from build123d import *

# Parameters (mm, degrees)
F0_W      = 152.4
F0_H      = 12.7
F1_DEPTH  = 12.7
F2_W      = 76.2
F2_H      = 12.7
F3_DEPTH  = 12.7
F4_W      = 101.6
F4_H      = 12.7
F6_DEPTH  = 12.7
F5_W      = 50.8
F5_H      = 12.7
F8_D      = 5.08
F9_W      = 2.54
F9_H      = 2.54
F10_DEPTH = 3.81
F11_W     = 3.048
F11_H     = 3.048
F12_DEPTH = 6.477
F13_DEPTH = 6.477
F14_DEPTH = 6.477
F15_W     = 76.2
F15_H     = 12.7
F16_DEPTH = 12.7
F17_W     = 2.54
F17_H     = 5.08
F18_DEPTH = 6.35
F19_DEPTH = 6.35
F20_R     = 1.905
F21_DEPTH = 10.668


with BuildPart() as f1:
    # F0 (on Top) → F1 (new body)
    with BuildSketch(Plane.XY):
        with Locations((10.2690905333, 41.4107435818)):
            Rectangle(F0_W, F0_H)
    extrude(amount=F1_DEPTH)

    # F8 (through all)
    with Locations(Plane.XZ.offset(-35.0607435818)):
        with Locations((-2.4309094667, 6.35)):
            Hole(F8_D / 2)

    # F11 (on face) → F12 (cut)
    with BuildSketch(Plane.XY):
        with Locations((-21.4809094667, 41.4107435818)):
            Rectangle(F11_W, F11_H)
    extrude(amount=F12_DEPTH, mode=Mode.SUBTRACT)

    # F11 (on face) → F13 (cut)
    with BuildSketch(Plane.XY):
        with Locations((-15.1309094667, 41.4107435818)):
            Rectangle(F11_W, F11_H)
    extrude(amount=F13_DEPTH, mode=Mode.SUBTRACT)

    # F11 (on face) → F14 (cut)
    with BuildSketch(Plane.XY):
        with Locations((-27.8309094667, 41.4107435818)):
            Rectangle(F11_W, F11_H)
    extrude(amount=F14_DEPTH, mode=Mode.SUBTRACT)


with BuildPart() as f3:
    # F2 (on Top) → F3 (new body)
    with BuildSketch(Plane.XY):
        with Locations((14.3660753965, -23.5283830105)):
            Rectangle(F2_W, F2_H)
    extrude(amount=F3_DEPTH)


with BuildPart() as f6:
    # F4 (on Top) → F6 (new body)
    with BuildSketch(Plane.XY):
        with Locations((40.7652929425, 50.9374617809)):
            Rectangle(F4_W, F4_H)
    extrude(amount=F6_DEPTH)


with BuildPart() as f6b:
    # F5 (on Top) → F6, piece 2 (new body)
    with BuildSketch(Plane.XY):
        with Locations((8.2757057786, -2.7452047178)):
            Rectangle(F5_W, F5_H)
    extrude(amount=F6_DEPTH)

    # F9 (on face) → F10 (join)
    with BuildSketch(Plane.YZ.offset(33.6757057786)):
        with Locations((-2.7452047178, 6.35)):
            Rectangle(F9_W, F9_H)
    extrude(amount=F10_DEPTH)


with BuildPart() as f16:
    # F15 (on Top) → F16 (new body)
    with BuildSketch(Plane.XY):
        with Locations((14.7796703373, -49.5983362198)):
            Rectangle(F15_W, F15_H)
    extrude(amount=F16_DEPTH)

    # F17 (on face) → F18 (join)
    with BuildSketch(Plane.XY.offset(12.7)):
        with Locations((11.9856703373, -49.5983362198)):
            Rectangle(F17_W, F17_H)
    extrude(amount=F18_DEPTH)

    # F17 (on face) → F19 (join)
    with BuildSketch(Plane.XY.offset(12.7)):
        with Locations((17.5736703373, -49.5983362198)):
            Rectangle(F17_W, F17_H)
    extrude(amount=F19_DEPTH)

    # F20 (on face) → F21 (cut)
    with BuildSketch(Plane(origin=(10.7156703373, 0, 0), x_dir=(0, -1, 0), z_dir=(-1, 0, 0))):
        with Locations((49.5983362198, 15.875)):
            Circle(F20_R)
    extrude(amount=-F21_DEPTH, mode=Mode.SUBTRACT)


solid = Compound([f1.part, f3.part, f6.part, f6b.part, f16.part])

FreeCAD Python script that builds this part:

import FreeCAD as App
import Part
import Sketcher
from FreeCAD import Vector
Q = App.Units.Quantity

doc = App.newDocument("Part")
body = doc.addObject("PartDesign::Body", "Body")

sketch1 = doc.addObject("Sketcher::SketchObject", "Sketch")
body.addObject(sketch1)
sketch1.AttachmentSupport = (doc.XY_Plane, [""])
sketch1.MapMode = "FlatFace"
sketch1.addGeometry([
    Part.LineSegment(Vector(-65.930909, 47.760744, 0), Vector(-65.930909, 35.060744, 0)),
    Part.LineSegment(Vector(-65.930909, 35.060744, 0), Vector(86.469091, 35.060744, 0)),
    Part.LineSegment(Vector(86.469091, 35.060744, 0), Vector(86.469091, 47.760744, 0)),
    Part.LineSegment(Vector(86.469091, 47.760744, 0), Vector(-65.930909, 47.760744, 0)),
], False)
sketch1.addConstraint([
    Sketcher.Constraint("Coincident", 0, 2, 1, 1),
    Sketcher.Constraint("Coincident", 1, 2, 2, 1),
    Sketcher.Constraint("Coincident", 2, 2, 3, 1),
    Sketcher.Constraint("Coincident", 3, 2, 0, 1),
    Sketcher.Constraint("Vertical", 0),
    Sketcher.Constraint("Horizontal", 1),
    Sketcher.Constraint("Vertical", 2),
    Sketcher.Constraint("Horizontal", 3),
    Sketcher.Constraint("DistanceX", 1, 1, 1, 2, Q("6 in")),
    Sketcher.Constraint("DistanceY", 0, 2, 0, 1, Q("0.5 in")),
    Sketcher.Constraint("DistanceX", 0, 2, -1, 1, 65.930909),
    Sketcher.Constraint("DistanceY", -1, 1, 0, 2, 35.060744),
])
pad1 = doc.addObject("PartDesign::Pad", "Pad")
body.addObject(pad1)
pad1.Profile = sketch1
pad1.Length = Q("0.5 in")

sketch2 = doc.addObject("Sketcher::SketchObject", "Sketch001")
body.addObject(sketch2)
sketch2.AttachmentSupport = (doc.XZ_Plane, [""])
sketch2.MapMode = "FlatFace"
sketch2.AttachmentOffset = App.Placement(Vector(0, 0, -35.060744), App.Rotation())
sketch2.addGeometry(Part.Circle(Vector(-2.430909, 6.35, 0), Vector(0, 0, 1), 2.54), False)
sketch2.addConstraint([
    Sketcher.Constraint("Diameter", 0, Q("0.2 in")),
    Sketcher.Constraint("DistanceY", -1, 1, 0, 3, Q("0.25 in")),
    Sketcher.Constraint("DistanceX", 0, 3, -1, 1, 2.430909),
])
doc.recompute()
hole = doc.addObject("PartDesign::Hole", "Hole")
body.addObject(hole)
hole.Profile = sketch2
hole.ThreadType = "None"
hole.Diameter = Q("0.2 in")
hole.DepthType = "ThroughAll"

sketch3 = doc.addObject("Sketcher::SketchObject", "Sketch002")
body.addObject(sketch3)
sketch3.AttachmentSupport = (doc.XY_Plane, [""])
sketch3.MapMode = "FlatFace"
sketch3.addGeometry([
    Part.LineSegment(Vector(-23.004909, 42.934744, 0), Vector(-23.004909, 39.886744, 0)),
    Part.LineSegment(Vector(-23.004909, 39.886744, 0), Vector(-19.956909, 39.886744, 0)),
    Part.LineSegment(Vector(-19.956909, 39.886744, 0), Vector(-19.956909, 42.934744, 0)),
    Part.LineSegment(Vector(-19.956909, 42.934744, 0), Vector(-23.004909, 42.934744, 0)),
], False)
sketch3.addConstraint([
    Sketcher.Constraint("Coincident", 0, 2, 1, 1),
    Sketcher.Constraint("Coincident", 1, 2, 2, 1),
    Sketcher.Constraint("Coincident", 2, 2, 3, 1),
    Sketcher.Constraint("Coincident", 3, 2, 0, 1),
    Sketcher.Constraint("Vertical", 0),
    Sketcher.Constraint("Horizontal", 1),
    Sketcher.Constraint("Vertical", 2),
    Sketcher.Constraint("Horizontal", 3),
    Sketcher.Constraint("Equal", 3, 0),
    Sketcher.Constraint("DistanceX", 1, 1, 1, 2, Q("0.12 in")),
    Sketcher.Constraint("DistanceX", 0, 2, -1, 1, 23.004909),
    Sketcher.Constraint("DistanceY", -1, 1, 0, 2, 39.886744),
])
pocket1 = doc.addObject("PartDesign::Pocket", "Pocket")
body.addObject(pocket1)
pocket1.Profile = sketch3
pocket1.Length = Q("0.255 in")
pocket1.Reversed = True

sketch4 = doc.addObject("Sketcher::SketchObject", "Sketch003")
body.addObject(sketch4)
sketch4.AttachmentSupport = (doc.XY_Plane, [""])
sketch4.MapMode = "FlatFace"
sketch4.addGeometry([
    Part.LineSegment(Vector(-16.654909, 42.934744, 0), Vector(-16.654909, 39.886744, 0)),
    Part.LineSegment(Vector(-16.654909, 39.886744, 0), Vector(-13.606909, 39.886744, 0)),
    Part.LineSegment(Vector(-13.606909, 39.886744, 0), Vector(-13.606909, 42.934744, 0)),
    Part.LineSegment(Vector(-13.606909, 42.934744, 0), Vector(-16.654909, 42.934744, 0)),
], False)
sketch4.addConstraint([
    Sketcher.Constraint("Coincident", 0, 2, 1, 1),
    Sketcher.Constraint("Coincident", 1, 2, 2, 1),
    Sketcher.Constraint("Coincident", 2, 2, 3, 1),
    Sketcher.Constraint("Coincident", 3, 2, 0, 1),
    Sketcher.Constraint("Vertical", 0),
    Sketcher.Constraint("Horizontal", 1),
    Sketcher.Constraint("Vertical", 2),
    Sketcher.Constraint("Horizontal", 3),
    Sketcher.Constraint("Equal", 3, 0),
    Sketcher.Constraint("DistanceX", 1, 1, 1, 2, Q("0.12 in")),
    Sketcher.Constraint("DistanceX", 0, 2, -1, 1, 16.654909),
    Sketcher.Constraint("DistanceY", -1, 1, 0, 2, 39.886744),
])
pocket2 = doc.addObject("PartDesign::Pocket", "Pocket001")
body.addObject(pocket2)
pocket2.Profile = sketch4
pocket2.Length = Q("0.255 in")
pocket2.Reversed = True

sketch5 = doc.addObject("Sketcher::SketchObject", "Sketch004")
body.addObject(sketch5)
sketch5.AttachmentSupport = (doc.XY_Plane, [""])
sketch5.MapMode = "FlatFace"
sketch5.addGeometry([
    Part.LineSegment(Vector(-29.354909, 42.934744, 0), Vector(-29.354909, 39.886744, 0)),
    Part.LineSegment(Vector(-29.354909, 39.886744, 0), Vector(-26.306909, 39.886744, 0)),
    Part.LineSegment(Vector(-26.306909, 39.886744, 0), Vector(-26.306909, 42.934744, 0)),
    Part.LineSegment(Vector(-26.306909, 42.934744, 0), Vector(-29.354909, 42.934744, 0)),
], False)
sketch5.addConstraint([
    Sketcher.Constraint("Coincident", 0, 2, 1, 1),
    Sketcher.Constraint("Coincident", 1, 2, 2, 1),
    Sketcher.Constraint("Coincident", 2, 2, 3, 1),
    Sketcher.Constraint("Coincident", 3, 2, 0, 1),
    Sketcher.Constraint("Vertical", 0),
    Sketcher.Constraint("Horizontal", 1),
    Sketcher.Constraint("Vertical", 2),
    Sketcher.Constraint("Horizontal", 3),
    Sketcher.Constraint("Equal", 3, 0),
    Sketcher.Constraint("DistanceX", 1, 1, 1, 2, Q("0.12 in")),
    Sketcher.Constraint("DistanceX", 0, 2, -1, 1, 29.354909),
    Sketcher.Constraint("DistanceY", -1, 1, 0, 2, 39.886744),
])
pocket3 = doc.addObject("PartDesign::Pocket", "Pocket002")
body.addObject(pocket3)
pocket3.Profile = sketch5
pocket3.Length = Q("0.255 in")
pocket3.Reversed = True
body2 = doc.addObject("PartDesign::Body", "Body001")

sketch6 = doc.addObject("Sketcher::SketchObject", "Sketch005")
body2.addObject(sketch6)
sketch6.AttachmentSupport = (doc.getObject("XY_Plane001"), [""])
sketch6.MapMode = "FlatFace"
sketch6.addGeometry([
    Part.LineSegment(Vector(-23.733925, -17.178383, 0), Vector(-23.733925, -29.878383, 0)),
    Part.LineSegment(Vector(-23.733925, -29.878383, 0), Vector(52.466075, -29.878383, 0)),
    Part.LineSegment(Vector(52.466075, -29.878383, 0), Vector(52.466075, -17.178383, 0)),
    Part.LineSegment(Vector(52.466075, -17.178383, 0), Vector(-23.733925, -17.178383, 0)),
], False)
sketch6.addConstraint([
    Sketcher.Constraint("Coincident", 0, 2, 1, 1),
    Sketcher.Constraint("Coincident", 1, 2, 2, 1),
    Sketcher.Constraint("Coincident", 2, 2, 3, 1),
    Sketcher.Constraint("Coincident", 3, 2, 0, 1),
    Sketcher.Constraint("Vertical", 0),
    Sketcher.Constraint("Horizontal", 1),
    Sketcher.Constraint("Vertical", 2),
    Sketcher.Constraint("Horizontal", 3),
    Sketcher.Constraint("DistanceX", 1, 1, 1, 2, Q("3 in")),
    Sketcher.Constraint("DistanceY", 0, 2, 0, 1, Q("0.5 in")),
    Sketcher.Constraint("DistanceX", 0, 2, -1, 1, 23.733925),
    Sketcher.Constraint("DistanceY", 0, 2, -1, 1, 29.878383),
])
pad2 = doc.addObject("PartDesign::Pad", "Pad001")
body2.addObject(pad2)
pad2.Profile = sketch6
pad2.Length = Q("0.5 in")
body3 = doc.addObject("PartDesign::Body", "Body002")

sketch7 = doc.addObject("Sketcher::SketchObject", "Sketch006")
body3.addObject(sketch7)
sketch7.AttachmentSupport = (doc.getObject("XY_Plane002"), [""])
sketch7.MapMode = "FlatFace"
sketch7.addGeometry([
    Part.LineSegment(Vector(-10.034707, 57.287462, 0), Vector(-10.034707, 44.587462, 0)),
    Part.LineSegment(Vector(-10.034707, 44.587462, 0), Vector(91.565293, 44.587462, 0)),
    Part.LineSegment(Vector(91.565293, 44.587462, 0), Vector(91.565293, 57.287462, 0)),
    Part.LineSegment(Vector(91.565293, 57.287462, 0), Vector(-10.034707, 57.287462, 0)),
], False)
sketch7.addConstraint([
    Sketcher.Constraint("Coincident", 0, 2, 1, 1),
    Sketcher.Constraint("Coincident", 1, 2, 2, 1),
    Sketcher.Constraint("Coincident", 2, 2, 3, 1),
    Sketcher.Constraint("Coincident", 3, 2, 0, 1),
    Sketcher.Constraint("Vertical", 0),
    Sketcher.Constraint("Horizontal", 1),
    Sketcher.Constraint("Vertical", 2),
    Sketcher.Constraint("Horizontal", 3),
    Sketcher.Constraint("DistanceX", 1, 1, 1, 2, Q("4 in")),
    Sketcher.Constraint("DistanceY", 0, 2, 0, 1, Q("0.5 in")),
    Sketcher.Constraint("DistanceY", -1, 1, 0, 2, 44.587462),
    Sketcher.Constraint("DistanceX", 0, 2, -1, 1, 10.034707),
])
pad3 = doc.addObject("PartDesign::Pad", "Pad002")
body3.addObject(pad3)
pad3.Profile = sketch7
pad3.Length = Q("0.5 in")
body4 = doc.addObject("PartDesign::Body", "Body003")

sketch8 = doc.addObject("Sketcher::SketchObject", "Sketch007")
body4.addObject(sketch8)
sketch8.AttachmentSupport = (doc.getObject("XY_Plane003"), [""])
sketch8.MapMode = "FlatFace"
sketch8.addGeometry([
    Part.LineSegment(Vector(-17.124294, 3.604795, 0), Vector(-17.124294, -9.095205, 0)),
    Part.LineSegment(Vector(-17.124294, -9.095205, 0), Vector(33.675706, -9.095205, 0)),
    Part.LineSegment(Vector(33.675706, -9.095205, 0), Vector(33.675706, 3.604795, 0)),
    Part.LineSegment(Vector(33.675706, 3.604795, 0), Vector(-17.124294, 3.604795, 0)),
], False)
sketch8.addConstraint([
    Sketcher.Constraint("Coincident", 0, 2, 1, 1),
    Sketcher.Constraint("Coincident", 1, 2, 2, 1),
    Sketcher.Constraint("Coincident", 2, 2, 3, 1),
    Sketcher.Constraint("Coincident", 3, 2, 0, 1),
    Sketcher.Constraint("Vertical", 0),
    Sketcher.Constraint("Horizontal", 1),
    Sketcher.Constraint("Vertical", 2),
    Sketcher.Constraint("Horizontal", 3),
    Sketcher.Constraint("DistanceX", 1, 1, 1, 2, Q("2 in")),
    Sketcher.Constraint("DistanceY", 0, 2, 0, 1, Q("0.5 in")),
    Sketcher.Constraint("DistanceX", 0, 2, -1, 1, 17.124294),
    Sketcher.Constraint("DistanceY", 0, 2, -1, 1, 9.095205),
])
pad4 = doc.addObject("PartDesign::Pad", "Pad003")
body4.addObject(pad4)
pad4.Profile = sketch8
pad4.Length = Q("0.5 in")

sketch9 = doc.addObject("Sketcher::SketchObject", "Sketch008")
body4.addObject(sketch9)
sketch9.AttachmentSupport = (doc.getObject("YZ_Plane003"), [""])
sketch9.MapMode = "FlatFace"
sketch9.AttachmentOffset = App.Placement(Vector(0, 0, 33.675706), App.Rotation())
sketch9.addGeometry([
    Part.LineSegment(Vector(-4.015205, 7.62, 0), Vector(-4.015205, 5.08, 0)),
    Part.LineSegment(Vector(-4.015205, 5.08, 0), Vector(-1.475205, 5.08, 0)),
    Part.LineSegment(Vector(-1.475205, 5.08, 0), Vector(-1.475205, 7.62, 0)),
    Part.LineSegment(Vector(-1.475205, 7.62, 0), Vector(-4.015205, 7.62, 0)),
], False)
sketch9.addConstraint([
    Sketcher.Constraint("Coincident", 0, 2, 1, 1),
    Sketcher.Constraint("Coincident", 1, 2, 2, 1),
    Sketcher.Constraint("Coincident", 2, 2, 3, 1),
    Sketcher.Constraint("Coincident", 3, 2, 0, 1),
    Sketcher.Constraint("Vertical", 0),
    Sketcher.Constraint("Horizontal", 1),
    Sketcher.Constraint("Vertical", 2),
    Sketcher.Constraint("Horizontal", 3),
    Sketcher.Constraint("Equal", 3, 0),
    Sketcher.Constraint("DistanceX", 1, 1, 1, 2, Q("0.1 in")),
    Sketcher.Constraint("DistanceY", -1, 1, 0, 2, Q("0.2 in")),
    Sketcher.Constraint("DistanceX", 0, 2, -1, 1, 4.015205),
])
pad5 = doc.addObject("PartDesign::Pad", "Pad004")
body4.addObject(pad5)
pad5.Profile = sketch9
pad5.Length = Q("0.15 in")
body5 = doc.addObject("PartDesign::Body", "Body004")

sketch10 = doc.addObject("Sketcher::SketchObject", "Sketch009")
body5.addObject(sketch10)
sketch10.AttachmentSupport = (doc.getObject("XY_Plane004"), [""])
sketch10.MapMode = "FlatFace"
sketch10.addGeometry([
    Part.LineSegment(Vector(-23.32033, -43.248336, 0), Vector(-23.32033, -55.948336, 0)),
    Part.LineSegment(Vector(-23.32033, -55.948336, 0), Vector(52.87967, -55.948336, 0)),
    Part.LineSegment(Vector(52.87967, -55.948336, 0), Vector(52.87967, -43.248336, 0)),
    Part.LineSegment(Vector(52.87967, -43.248336, 0), Vector(-23.32033, -43.248336, 0)),
], False)
sketch10.addConstraint([
    Sketcher.Constraint("Coincident", 0, 2, 1, 1),
    Sketcher.Constraint("Coincident", 1, 2, 2, 1),
    Sketcher.Constraint("Coincident", 2, 2, 3, 1),
    Sketcher.Constraint("Coincident", 3, 2, 0, 1),
    Sketcher.Constraint("Vertical", 0),
    Sketcher.Constraint("Horizontal", 1),
    Sketcher.Constraint("Vertical", 2),
    Sketcher.Constraint("Horizontal", 3),
    Sketcher.Constraint("DistanceX", 1, 1, 1, 2, Q("3 in")),
    Sketcher.Constraint("DistanceY", 0, 2, 0, 1, Q("0.5 in")),
    Sketcher.Constraint("DistanceX", 0, 2, -1, 1, 23.32033),
    Sketcher.Constraint("DistanceY", 0, 2, -1, 1, 55.948336),
])
pad6 = doc.addObject("PartDesign::Pad", "Pad005")
body5.addObject(pad6)
pad6.Profile = sketch10
pad6.Length = Q("0.5 in")

sketch11 = doc.addObject("Sketcher::SketchObject", "Sketch010")
body5.addObject(sketch11)
sketch11.AttachmentSupport = (doc.getObject("XY_Plane004"), [""])
sketch11.MapMode = "FlatFace"
sketch11.AttachmentOffset = App.Placement(Vector(0, 0, 0.5 * 25.4), App.Rotation())
sketch11.addGeometry([
    Part.LineSegment(Vector(10.71567, -47.058336, 0), Vector(10.71567, -52.138336, 0)),
    Part.LineSegment(Vector(10.71567, -52.138336, 0), Vector(13.25567, -52.138336, 0)),
    Part.LineSegment(Vector(13.25567, -52.138336, 0), Vector(13.25567, -47.058336, 0)),
    Part.LineSegment(Vector(13.25567, -47.058336, 0), Vector(10.71567, -47.058336, 0)),
], False)
sketch11.addConstraint([
    Sketcher.Constraint("Coincident", 0, 2, 1, 1),
    Sketcher.Constraint("Coincident", 1, 2, 2, 1),
    Sketcher.Constraint("Coincident", 2, 2, 3, 1),
    Sketcher.Constraint("Coincident", 3, 2, 0, 1),
    Sketcher.Constraint("Vertical", 0),
    Sketcher.Constraint("Horizontal", 1),
    Sketcher.Constraint("Vertical", 2),
    Sketcher.Constraint("Horizontal", 3),
    Sketcher.Constraint("DistanceX", 1, 1, 1, 2, Q("0.1 in")),
    Sketcher.Constraint("DistanceY", 0, 2, 0, 1, Q("0.2 in")),
    Sketcher.Constraint("DistanceX", -1, 1, 0, 2, 10.71567),
    Sketcher.Constraint("DistanceY", 0, 2, -1, 1, 52.138336),
])
pad7 = doc.addObject("PartDesign::Pad", "Pad006")
body5.addObject(pad7)
pad7.Profile = sketch11
pad7.Length = Q("0.25 in")

sketch12 = doc.addObject("Sketcher::SketchObject", "Sketch011")
body5.addObject(sketch12)
sketch12.AttachmentSupport = (doc.getObject("XY_Plane004"), [""])
sketch12.MapMode = "FlatFace"
sketch12.AttachmentOffset = App.Placement(Vector(0, 0, 0.5 * 25.4), App.Rotation())
sketch12.addGeometry([
    Part.LineSegment(Vector(16.30367, -47.058336, 0), Vector(16.30367, -52.138336, 0)),
    Part.LineSegment(Vector(16.30367, -52.138336, 0), Vector(18.84367, -52.138336, 0)),
    Part.LineSegment(Vector(18.84367, -52.138336, 0), Vector(18.84367, -47.058336, 0)),
    Part.LineSegment(Vector(18.84367, -47.058336, 0), Vector(16.30367, -47.058336, 0)),
], False)
sketch12.addConstraint([
    Sketcher.Constraint("Coincident", 0, 2, 1, 1),
    Sketcher.Constraint("Coincident", 1, 2, 2, 1),
    Sketcher.Constraint("Coincident", 2, 2, 3, 1),
    Sketcher.Constraint("Coincident", 3, 2, 0, 1),
    Sketcher.Constraint("Vertical", 0),
    Sketcher.Constraint("Horizontal", 1),
    Sketcher.Constraint("Vertical", 2),
    Sketcher.Constraint("Horizontal", 3),
    Sketcher.Constraint("DistanceX", 1, 1, 1, 2, Q("0.1 in")),
    Sketcher.Constraint("DistanceY", 0, 2, 0, 1, Q("0.2 in")),
    Sketcher.Constraint("DistanceX", -1, 1, 0, 2, 16.30367),
    Sketcher.Constraint("DistanceY", 0, 2, -1, 1, 52.138336),
])
pad8 = doc.addObject("PartDesign::Pad", "Pad007")
body5.addObject(pad8)
pad8.Profile = sketch12
pad8.Length = Q("0.25 in")

sketch13 = doc.addObject("Sketcher::SketchObject", "Sketch012")
body5.addObject(sketch13)
sketch13.AttachmentSupport = (doc.getObject("YZ_Plane004"), [""])
sketch13.MapMode = "FlatFace"
sketch13.AttachmentOffset = App.Placement(Vector(0, 0, 10.71567), App.Rotation())
sketch13.addGeometry(Part.Circle(Vector(-49.598336, 15.875, 0), Vector(0, 0, 1), 1.905), False)
sketch13.addConstraint([
    Sketcher.Constraint("Diameter", 0, Q("0.15 in")),
    Sketcher.Constraint("DistanceY", -1, 1, 0, 3, Q("0.625 in")),
    Sketcher.Constraint("DistanceX", 0, 3, -1, 1, 49.598336),
])
pocket4 = doc.addObject("PartDesign::Pocket", "Pocket003")
body5.addObject(pocket4)
pocket4.Profile = sketch13
pocket4.Length = Q("0.42 in")
pocket4.Reversed = True

doc.recompute()
